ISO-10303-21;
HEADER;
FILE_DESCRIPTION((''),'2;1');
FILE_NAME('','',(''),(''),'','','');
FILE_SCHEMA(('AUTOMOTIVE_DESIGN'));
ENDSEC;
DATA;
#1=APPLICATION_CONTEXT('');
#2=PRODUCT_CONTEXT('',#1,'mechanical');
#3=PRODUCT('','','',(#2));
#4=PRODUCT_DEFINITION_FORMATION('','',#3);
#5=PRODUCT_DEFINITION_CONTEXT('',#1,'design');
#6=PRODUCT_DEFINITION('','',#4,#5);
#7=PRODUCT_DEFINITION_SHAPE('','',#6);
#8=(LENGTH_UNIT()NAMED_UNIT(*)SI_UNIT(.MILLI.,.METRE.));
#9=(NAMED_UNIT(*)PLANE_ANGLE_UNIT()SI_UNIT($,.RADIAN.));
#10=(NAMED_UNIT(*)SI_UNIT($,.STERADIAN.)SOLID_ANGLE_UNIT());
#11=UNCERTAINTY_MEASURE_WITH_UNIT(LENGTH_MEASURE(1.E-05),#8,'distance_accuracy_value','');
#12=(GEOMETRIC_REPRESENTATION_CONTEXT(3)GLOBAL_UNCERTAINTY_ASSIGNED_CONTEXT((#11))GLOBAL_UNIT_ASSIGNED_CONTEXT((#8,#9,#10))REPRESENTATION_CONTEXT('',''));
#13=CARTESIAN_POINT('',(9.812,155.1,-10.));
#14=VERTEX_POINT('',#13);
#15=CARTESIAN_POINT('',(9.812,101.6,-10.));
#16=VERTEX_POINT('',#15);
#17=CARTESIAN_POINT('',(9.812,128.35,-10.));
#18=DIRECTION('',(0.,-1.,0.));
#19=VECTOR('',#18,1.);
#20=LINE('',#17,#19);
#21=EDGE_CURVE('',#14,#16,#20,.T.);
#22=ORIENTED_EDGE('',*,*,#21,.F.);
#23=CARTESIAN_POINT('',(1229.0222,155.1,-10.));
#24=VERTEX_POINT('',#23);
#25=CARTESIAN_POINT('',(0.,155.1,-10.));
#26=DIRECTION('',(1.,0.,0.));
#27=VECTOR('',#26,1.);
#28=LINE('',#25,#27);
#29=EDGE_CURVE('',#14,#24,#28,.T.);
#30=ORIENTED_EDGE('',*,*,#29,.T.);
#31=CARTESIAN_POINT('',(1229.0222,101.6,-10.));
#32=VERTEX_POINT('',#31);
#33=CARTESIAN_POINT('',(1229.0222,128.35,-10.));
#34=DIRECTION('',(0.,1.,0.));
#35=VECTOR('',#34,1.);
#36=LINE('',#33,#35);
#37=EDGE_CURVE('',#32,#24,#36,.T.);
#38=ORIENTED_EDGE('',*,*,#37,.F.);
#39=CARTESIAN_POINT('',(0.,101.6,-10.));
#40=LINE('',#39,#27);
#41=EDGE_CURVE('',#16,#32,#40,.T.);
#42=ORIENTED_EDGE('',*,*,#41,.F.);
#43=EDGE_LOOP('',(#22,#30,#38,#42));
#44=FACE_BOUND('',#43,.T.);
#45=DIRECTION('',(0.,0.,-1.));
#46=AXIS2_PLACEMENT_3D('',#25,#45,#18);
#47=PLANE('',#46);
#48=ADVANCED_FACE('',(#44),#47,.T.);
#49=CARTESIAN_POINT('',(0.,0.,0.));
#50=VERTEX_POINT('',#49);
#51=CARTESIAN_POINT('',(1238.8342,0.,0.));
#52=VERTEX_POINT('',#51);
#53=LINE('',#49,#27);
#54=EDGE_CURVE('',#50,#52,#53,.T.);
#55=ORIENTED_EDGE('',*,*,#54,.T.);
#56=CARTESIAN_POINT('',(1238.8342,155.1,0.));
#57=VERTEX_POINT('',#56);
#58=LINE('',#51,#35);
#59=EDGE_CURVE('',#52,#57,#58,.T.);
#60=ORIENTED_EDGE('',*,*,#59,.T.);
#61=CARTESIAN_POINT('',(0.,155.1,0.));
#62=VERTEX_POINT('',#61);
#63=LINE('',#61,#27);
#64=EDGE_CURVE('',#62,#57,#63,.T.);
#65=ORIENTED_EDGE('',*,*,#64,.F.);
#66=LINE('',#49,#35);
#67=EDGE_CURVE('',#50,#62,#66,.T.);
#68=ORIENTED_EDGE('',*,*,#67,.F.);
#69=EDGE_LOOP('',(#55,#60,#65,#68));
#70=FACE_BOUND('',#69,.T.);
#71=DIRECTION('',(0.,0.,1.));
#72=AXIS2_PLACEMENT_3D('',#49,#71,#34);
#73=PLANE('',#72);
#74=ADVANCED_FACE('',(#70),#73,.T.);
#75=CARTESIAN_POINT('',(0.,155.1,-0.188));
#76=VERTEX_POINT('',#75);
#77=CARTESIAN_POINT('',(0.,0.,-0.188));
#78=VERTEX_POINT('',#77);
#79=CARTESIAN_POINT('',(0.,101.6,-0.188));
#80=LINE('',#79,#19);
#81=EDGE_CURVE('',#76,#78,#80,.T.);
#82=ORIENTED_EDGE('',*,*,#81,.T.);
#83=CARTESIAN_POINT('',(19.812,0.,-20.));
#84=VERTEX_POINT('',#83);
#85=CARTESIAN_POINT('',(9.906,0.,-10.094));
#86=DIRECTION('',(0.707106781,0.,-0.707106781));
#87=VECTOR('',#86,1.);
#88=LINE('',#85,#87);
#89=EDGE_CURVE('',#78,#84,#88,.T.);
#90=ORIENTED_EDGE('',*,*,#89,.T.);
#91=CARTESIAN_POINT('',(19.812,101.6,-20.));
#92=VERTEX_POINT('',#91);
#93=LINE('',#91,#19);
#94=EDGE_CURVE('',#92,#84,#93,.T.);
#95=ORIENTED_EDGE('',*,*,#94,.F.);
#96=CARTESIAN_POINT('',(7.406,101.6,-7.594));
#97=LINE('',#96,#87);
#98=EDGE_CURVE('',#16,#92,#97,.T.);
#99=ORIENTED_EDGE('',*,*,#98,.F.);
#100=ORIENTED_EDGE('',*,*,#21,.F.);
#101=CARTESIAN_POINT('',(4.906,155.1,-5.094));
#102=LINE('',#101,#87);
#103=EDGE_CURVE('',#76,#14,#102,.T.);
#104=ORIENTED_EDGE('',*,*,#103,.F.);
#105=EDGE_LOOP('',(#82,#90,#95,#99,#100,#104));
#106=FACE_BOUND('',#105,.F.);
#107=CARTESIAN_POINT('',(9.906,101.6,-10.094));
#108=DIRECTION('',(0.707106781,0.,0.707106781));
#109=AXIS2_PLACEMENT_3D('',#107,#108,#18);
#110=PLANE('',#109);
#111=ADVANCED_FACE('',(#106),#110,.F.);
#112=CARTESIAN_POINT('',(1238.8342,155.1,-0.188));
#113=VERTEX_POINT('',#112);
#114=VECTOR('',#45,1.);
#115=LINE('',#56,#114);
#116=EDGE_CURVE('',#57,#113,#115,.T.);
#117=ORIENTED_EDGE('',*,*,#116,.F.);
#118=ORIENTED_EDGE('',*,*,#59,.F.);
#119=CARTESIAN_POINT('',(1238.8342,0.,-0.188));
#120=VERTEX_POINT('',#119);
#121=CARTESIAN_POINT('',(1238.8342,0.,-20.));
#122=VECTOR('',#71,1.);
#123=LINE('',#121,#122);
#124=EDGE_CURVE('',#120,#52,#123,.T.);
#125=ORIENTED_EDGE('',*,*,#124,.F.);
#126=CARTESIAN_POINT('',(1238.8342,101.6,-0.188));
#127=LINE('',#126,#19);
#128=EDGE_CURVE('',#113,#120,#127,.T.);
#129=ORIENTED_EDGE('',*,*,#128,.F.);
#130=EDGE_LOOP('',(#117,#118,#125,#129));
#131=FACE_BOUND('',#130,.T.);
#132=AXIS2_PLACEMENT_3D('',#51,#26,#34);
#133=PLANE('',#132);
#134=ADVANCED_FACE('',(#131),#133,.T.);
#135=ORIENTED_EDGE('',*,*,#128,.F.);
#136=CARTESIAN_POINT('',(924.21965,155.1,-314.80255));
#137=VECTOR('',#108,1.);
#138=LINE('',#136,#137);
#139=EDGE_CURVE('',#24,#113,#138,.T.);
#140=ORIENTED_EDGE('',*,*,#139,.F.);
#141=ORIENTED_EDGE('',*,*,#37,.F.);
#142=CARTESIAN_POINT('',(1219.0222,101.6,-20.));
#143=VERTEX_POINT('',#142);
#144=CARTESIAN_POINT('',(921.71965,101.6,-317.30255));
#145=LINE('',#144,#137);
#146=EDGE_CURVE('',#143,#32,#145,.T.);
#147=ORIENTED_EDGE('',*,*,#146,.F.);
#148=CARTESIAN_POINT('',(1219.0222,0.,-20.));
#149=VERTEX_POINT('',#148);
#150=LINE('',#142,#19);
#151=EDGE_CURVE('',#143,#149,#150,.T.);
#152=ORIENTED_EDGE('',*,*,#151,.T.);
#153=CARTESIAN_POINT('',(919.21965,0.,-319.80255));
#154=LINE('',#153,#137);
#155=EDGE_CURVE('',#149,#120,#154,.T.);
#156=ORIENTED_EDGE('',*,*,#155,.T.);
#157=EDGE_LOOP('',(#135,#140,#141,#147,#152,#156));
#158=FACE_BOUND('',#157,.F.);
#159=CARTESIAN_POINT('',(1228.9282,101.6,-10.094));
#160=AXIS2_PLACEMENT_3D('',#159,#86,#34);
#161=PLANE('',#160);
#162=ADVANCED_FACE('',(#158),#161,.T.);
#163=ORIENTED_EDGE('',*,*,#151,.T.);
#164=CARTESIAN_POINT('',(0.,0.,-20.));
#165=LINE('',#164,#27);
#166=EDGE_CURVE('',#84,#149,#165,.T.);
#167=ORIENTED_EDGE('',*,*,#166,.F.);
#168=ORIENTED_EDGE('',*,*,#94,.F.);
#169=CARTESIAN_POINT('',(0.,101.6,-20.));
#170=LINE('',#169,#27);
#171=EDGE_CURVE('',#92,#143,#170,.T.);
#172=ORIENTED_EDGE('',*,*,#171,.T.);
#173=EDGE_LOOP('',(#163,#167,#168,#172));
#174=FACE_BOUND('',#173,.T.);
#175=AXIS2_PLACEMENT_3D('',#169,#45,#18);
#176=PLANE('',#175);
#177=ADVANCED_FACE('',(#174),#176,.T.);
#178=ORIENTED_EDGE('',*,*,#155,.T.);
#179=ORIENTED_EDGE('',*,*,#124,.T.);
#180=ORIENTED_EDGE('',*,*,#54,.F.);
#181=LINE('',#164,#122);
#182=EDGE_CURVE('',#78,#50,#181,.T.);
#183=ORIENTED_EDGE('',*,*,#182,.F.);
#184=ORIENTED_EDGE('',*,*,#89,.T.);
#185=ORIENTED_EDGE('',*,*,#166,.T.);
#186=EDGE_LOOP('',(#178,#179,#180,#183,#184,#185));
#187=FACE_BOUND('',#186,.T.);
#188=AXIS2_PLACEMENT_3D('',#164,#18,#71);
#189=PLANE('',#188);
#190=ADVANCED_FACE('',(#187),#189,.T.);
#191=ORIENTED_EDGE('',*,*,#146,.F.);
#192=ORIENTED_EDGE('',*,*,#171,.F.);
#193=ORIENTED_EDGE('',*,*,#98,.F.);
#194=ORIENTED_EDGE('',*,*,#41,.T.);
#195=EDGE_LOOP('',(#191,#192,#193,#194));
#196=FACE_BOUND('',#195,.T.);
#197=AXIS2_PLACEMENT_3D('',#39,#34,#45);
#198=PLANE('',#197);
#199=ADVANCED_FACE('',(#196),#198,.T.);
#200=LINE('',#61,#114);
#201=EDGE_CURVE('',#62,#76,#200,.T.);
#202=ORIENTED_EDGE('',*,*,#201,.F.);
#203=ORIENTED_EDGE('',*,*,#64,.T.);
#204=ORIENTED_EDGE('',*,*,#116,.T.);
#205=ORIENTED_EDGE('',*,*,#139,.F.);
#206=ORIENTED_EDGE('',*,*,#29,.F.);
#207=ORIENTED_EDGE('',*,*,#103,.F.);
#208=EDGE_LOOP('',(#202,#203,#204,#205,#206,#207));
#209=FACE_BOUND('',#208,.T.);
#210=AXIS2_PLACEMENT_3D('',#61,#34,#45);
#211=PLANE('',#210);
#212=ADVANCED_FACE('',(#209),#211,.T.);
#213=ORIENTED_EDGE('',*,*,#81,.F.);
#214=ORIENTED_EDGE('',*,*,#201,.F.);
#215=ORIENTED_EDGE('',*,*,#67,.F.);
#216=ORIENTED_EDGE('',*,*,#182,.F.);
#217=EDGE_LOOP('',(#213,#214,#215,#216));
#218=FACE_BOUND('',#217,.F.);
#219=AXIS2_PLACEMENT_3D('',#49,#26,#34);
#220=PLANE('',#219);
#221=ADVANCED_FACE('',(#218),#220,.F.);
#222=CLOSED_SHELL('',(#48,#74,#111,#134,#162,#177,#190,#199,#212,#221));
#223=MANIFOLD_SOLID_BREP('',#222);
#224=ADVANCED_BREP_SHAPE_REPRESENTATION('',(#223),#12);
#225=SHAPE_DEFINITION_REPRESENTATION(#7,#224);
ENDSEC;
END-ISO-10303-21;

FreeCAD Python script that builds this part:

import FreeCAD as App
import Part
import Sketcher

V = App.Vector
Q = App.Units.Quantity


def edges_at(feature, points):
    """Names of the edges that pass closest to the given points."""
    edges = feature.Shape.Edges
    near = lambda p: min(range(len(edges)), key=lambda i: edges[i].distToShape(Part.Vertex(*p))[0])
    return sorted({f"Edge{near(p) + 1}" for p in points})

doc = App.newDocument("Part")
body = doc.addObject("PartDesign::Body", "Body")

# Sketch on YZ plane
sketch1 = body.newObject("Sketcher::SketchObject", "Sketch")
sketch1.AttachmentSupport = (doc.getObject("YZ_Plane"), [""])
sketch1.MapMode = "FlatFace"
sketch1.addGeometry(Part.LineSegment(V(155.1, 0, 0), V(0, 0, 0)), False)
sketch1.addGeometry(Part.LineSegment(V(0, 0, 0), V(0, -20, 0)), False)
sketch1.addGeometry(Part.LineSegment(V(0, -20, 0), V(101.6, -20, 0)), False)
sketch1.addGeometry(Part.LineSegment(V(101.6, -20, 0), V(101.6, -10, 0)), False)
sketch1.addGeometry(Part.LineSegment(V(101.6, -10, 0), V(155.1, -10, 0)), False)
sketch1.addGeometry(Part.LineSegment(V(155.1, -10, 0), V(155.1, 0, 0)), False)
sketch1.addConstraint(Sketcher.Constraint("Coincident", 0, 2, 1, 1))
sketch1.addConstraint(Sketcher.Constraint("Coincident", 1, 2, 2, 1))
sketch1.addConstraint(Sketcher.Constraint("Coincident", 2, 2, 3, 1))
sketch1.addConstraint(Sketcher.Constraint("Coincident", 3, 2, 4, 1))
sketch1.addConstraint(Sketcher.Constraint("Coincident", 4, 2, 5, 1))
sketch1.addConstraint(Sketcher.Constraint("Coincident", 5, 2, 0, 1))
sketch1.addConstraint(Sketcher.Constraint("Horizontal", 0))
sketch1.addConstraint(Sketcher.Constraint("Vertical", 1))
sketch1.addConstraint(Sketcher.Constraint("Horizontal", 2))
sketch1.addConstraint(Sketcher.Constraint("Vertical", 3))
sketch1.addConstraint(Sketcher.Constraint("Horizontal", 4))
sketch1.addConstraint(Sketcher.Constraint("Vertical", 5))
sketch1.addConstraint(Sketcher.Constraint("Coincident", 0, 2, -1, 1))
sketch1.addConstraint(Sketcher.Constraint("Equal", 3, 5))
sketch1.addConstraint(Sketcher.Constraint("DistanceX", 2, 1, 2, 2, Q("4 in")))
sketch1.addConstraint(Sketcher.Constraint("DistanceX", 0, 2, 0, 1, Q("6.1063 in")))
sketch1.addConstraint(Sketcher.Constraint("DistanceY", 1, 2, 1, 1, Q("0.7874 in")))
pad1 = body.newObject("PartDesign::Pad", "Pad")
pad1.Profile = sketch1
pad1.Length = Q("48.773 in")
doc.recompute()

chamfer = body.newObject("PartDesign::Chamfer", "Chamfer")
chamfer.Base = (pad1, edges_at(pad1, [(1238.834, 50.8, -20)]))
chamfer.Size = Q("0.78 in")
doc.recompute()

chamfer2 = body.newObject("PartDesign::Chamfer", "Chamfer001")
chamfer2.Base = (chamfer, edges_at(chamfer, [(0, 50.8, -20)]))
chamfer2.Size = Q("0.78 in")

doc.recompute()
